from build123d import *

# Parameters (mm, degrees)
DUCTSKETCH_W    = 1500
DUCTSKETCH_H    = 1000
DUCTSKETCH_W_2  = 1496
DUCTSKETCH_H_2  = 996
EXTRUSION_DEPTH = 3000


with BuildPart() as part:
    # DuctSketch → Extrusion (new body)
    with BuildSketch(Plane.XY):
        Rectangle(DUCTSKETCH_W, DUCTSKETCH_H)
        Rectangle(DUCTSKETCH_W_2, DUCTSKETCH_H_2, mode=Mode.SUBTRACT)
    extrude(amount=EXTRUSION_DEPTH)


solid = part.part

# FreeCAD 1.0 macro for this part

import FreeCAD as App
import Part
import Sketcher

V = App.Vector
Q = App.Units.Quantity


def add_polygon(sketch, points):
    """Adds a closed chain of lines whose ends are joined by coincident constraints."""
    first, n = sketch.GeometryCount, len(points)
    for a, b in zip(points, points[1:] + points[:1]):
        sketch.addGeometry(Part.LineSegment(App.Vector(*a, 0), App.Vector(*b, 0)), False)
    for i in range(n):
        sketch.addConstraint(Sketcher.Constraint("Coincident", first + i, 2, first + (i + 1) % n, 1))

doc = App.newDocument("Part")
body = doc.addObject("PartDesign::Body", "Body")

sketch1 = body.newObject("Sketcher::SketchObject", "Sketch")
sketch1.AttachmentSupport = (doc.getObject("XY_Plane"), [""])
sketch1.MapMode = "FlatFace"
add_polygon(sketch1, [(-750, 500), (-750, -500), (750, -500), (750, 500)])
add_polygon(sketch1, [(748, -498), (-748, -498), (-748, 498), (748, 498)])
sketch1.addConstraint(Sketcher.Constraint("Vertical", 0))
sketch1.addConstraint(Sketcher.Constraint("Horizontal", 1))
sketch1.addConstraint(Sketcher.Constraint("Vertical", 2))
sketch1.addConstraint(Sketcher.Constraint("Horizontal", 3))
sketch1.addConstraint(Sketcher.Constraint("Horizontal", 4))
sketch1.addConstraint(Sketcher.Constraint("Vertical", 5))
sketch1.addConstraint(Sketcher.Constraint("Horizontal", 6))
sketch1.addConstraint(Sketcher.Constraint("Vertical", 7))
sketch1.addConstraint(Sketcher.Constraint("Symmetric", 0, 2, 2, 2, -1, 1))
sketch1.addConstraint(Sketcher.Constraint("Symmetric", 4, 2, 6, 2, -1, 1))
sketch1.addConstraint(Sketcher.Constraint("DistanceX", 1, 1, 1, 2, Q("1500 mm")))
sketch1.addConstraint(Sketcher.Constraint("DistanceX", 4, 2, 4, 1, Q("1496 mm")))
sketch1.addConstraint(Sketcher.Constraint("DistanceY", 0, 2, 0, 1, Q("1000 mm")))
sketch1.addConstraint(Sketcher.Constraint("DistanceY", 5, 1, 5, 2, Q("996 mm")))
pad1 = body.newObject("PartDesign::Pad", "Pad")
pad1.Profile = sketch1
pad1.Length = 3000

doc.recompute()
